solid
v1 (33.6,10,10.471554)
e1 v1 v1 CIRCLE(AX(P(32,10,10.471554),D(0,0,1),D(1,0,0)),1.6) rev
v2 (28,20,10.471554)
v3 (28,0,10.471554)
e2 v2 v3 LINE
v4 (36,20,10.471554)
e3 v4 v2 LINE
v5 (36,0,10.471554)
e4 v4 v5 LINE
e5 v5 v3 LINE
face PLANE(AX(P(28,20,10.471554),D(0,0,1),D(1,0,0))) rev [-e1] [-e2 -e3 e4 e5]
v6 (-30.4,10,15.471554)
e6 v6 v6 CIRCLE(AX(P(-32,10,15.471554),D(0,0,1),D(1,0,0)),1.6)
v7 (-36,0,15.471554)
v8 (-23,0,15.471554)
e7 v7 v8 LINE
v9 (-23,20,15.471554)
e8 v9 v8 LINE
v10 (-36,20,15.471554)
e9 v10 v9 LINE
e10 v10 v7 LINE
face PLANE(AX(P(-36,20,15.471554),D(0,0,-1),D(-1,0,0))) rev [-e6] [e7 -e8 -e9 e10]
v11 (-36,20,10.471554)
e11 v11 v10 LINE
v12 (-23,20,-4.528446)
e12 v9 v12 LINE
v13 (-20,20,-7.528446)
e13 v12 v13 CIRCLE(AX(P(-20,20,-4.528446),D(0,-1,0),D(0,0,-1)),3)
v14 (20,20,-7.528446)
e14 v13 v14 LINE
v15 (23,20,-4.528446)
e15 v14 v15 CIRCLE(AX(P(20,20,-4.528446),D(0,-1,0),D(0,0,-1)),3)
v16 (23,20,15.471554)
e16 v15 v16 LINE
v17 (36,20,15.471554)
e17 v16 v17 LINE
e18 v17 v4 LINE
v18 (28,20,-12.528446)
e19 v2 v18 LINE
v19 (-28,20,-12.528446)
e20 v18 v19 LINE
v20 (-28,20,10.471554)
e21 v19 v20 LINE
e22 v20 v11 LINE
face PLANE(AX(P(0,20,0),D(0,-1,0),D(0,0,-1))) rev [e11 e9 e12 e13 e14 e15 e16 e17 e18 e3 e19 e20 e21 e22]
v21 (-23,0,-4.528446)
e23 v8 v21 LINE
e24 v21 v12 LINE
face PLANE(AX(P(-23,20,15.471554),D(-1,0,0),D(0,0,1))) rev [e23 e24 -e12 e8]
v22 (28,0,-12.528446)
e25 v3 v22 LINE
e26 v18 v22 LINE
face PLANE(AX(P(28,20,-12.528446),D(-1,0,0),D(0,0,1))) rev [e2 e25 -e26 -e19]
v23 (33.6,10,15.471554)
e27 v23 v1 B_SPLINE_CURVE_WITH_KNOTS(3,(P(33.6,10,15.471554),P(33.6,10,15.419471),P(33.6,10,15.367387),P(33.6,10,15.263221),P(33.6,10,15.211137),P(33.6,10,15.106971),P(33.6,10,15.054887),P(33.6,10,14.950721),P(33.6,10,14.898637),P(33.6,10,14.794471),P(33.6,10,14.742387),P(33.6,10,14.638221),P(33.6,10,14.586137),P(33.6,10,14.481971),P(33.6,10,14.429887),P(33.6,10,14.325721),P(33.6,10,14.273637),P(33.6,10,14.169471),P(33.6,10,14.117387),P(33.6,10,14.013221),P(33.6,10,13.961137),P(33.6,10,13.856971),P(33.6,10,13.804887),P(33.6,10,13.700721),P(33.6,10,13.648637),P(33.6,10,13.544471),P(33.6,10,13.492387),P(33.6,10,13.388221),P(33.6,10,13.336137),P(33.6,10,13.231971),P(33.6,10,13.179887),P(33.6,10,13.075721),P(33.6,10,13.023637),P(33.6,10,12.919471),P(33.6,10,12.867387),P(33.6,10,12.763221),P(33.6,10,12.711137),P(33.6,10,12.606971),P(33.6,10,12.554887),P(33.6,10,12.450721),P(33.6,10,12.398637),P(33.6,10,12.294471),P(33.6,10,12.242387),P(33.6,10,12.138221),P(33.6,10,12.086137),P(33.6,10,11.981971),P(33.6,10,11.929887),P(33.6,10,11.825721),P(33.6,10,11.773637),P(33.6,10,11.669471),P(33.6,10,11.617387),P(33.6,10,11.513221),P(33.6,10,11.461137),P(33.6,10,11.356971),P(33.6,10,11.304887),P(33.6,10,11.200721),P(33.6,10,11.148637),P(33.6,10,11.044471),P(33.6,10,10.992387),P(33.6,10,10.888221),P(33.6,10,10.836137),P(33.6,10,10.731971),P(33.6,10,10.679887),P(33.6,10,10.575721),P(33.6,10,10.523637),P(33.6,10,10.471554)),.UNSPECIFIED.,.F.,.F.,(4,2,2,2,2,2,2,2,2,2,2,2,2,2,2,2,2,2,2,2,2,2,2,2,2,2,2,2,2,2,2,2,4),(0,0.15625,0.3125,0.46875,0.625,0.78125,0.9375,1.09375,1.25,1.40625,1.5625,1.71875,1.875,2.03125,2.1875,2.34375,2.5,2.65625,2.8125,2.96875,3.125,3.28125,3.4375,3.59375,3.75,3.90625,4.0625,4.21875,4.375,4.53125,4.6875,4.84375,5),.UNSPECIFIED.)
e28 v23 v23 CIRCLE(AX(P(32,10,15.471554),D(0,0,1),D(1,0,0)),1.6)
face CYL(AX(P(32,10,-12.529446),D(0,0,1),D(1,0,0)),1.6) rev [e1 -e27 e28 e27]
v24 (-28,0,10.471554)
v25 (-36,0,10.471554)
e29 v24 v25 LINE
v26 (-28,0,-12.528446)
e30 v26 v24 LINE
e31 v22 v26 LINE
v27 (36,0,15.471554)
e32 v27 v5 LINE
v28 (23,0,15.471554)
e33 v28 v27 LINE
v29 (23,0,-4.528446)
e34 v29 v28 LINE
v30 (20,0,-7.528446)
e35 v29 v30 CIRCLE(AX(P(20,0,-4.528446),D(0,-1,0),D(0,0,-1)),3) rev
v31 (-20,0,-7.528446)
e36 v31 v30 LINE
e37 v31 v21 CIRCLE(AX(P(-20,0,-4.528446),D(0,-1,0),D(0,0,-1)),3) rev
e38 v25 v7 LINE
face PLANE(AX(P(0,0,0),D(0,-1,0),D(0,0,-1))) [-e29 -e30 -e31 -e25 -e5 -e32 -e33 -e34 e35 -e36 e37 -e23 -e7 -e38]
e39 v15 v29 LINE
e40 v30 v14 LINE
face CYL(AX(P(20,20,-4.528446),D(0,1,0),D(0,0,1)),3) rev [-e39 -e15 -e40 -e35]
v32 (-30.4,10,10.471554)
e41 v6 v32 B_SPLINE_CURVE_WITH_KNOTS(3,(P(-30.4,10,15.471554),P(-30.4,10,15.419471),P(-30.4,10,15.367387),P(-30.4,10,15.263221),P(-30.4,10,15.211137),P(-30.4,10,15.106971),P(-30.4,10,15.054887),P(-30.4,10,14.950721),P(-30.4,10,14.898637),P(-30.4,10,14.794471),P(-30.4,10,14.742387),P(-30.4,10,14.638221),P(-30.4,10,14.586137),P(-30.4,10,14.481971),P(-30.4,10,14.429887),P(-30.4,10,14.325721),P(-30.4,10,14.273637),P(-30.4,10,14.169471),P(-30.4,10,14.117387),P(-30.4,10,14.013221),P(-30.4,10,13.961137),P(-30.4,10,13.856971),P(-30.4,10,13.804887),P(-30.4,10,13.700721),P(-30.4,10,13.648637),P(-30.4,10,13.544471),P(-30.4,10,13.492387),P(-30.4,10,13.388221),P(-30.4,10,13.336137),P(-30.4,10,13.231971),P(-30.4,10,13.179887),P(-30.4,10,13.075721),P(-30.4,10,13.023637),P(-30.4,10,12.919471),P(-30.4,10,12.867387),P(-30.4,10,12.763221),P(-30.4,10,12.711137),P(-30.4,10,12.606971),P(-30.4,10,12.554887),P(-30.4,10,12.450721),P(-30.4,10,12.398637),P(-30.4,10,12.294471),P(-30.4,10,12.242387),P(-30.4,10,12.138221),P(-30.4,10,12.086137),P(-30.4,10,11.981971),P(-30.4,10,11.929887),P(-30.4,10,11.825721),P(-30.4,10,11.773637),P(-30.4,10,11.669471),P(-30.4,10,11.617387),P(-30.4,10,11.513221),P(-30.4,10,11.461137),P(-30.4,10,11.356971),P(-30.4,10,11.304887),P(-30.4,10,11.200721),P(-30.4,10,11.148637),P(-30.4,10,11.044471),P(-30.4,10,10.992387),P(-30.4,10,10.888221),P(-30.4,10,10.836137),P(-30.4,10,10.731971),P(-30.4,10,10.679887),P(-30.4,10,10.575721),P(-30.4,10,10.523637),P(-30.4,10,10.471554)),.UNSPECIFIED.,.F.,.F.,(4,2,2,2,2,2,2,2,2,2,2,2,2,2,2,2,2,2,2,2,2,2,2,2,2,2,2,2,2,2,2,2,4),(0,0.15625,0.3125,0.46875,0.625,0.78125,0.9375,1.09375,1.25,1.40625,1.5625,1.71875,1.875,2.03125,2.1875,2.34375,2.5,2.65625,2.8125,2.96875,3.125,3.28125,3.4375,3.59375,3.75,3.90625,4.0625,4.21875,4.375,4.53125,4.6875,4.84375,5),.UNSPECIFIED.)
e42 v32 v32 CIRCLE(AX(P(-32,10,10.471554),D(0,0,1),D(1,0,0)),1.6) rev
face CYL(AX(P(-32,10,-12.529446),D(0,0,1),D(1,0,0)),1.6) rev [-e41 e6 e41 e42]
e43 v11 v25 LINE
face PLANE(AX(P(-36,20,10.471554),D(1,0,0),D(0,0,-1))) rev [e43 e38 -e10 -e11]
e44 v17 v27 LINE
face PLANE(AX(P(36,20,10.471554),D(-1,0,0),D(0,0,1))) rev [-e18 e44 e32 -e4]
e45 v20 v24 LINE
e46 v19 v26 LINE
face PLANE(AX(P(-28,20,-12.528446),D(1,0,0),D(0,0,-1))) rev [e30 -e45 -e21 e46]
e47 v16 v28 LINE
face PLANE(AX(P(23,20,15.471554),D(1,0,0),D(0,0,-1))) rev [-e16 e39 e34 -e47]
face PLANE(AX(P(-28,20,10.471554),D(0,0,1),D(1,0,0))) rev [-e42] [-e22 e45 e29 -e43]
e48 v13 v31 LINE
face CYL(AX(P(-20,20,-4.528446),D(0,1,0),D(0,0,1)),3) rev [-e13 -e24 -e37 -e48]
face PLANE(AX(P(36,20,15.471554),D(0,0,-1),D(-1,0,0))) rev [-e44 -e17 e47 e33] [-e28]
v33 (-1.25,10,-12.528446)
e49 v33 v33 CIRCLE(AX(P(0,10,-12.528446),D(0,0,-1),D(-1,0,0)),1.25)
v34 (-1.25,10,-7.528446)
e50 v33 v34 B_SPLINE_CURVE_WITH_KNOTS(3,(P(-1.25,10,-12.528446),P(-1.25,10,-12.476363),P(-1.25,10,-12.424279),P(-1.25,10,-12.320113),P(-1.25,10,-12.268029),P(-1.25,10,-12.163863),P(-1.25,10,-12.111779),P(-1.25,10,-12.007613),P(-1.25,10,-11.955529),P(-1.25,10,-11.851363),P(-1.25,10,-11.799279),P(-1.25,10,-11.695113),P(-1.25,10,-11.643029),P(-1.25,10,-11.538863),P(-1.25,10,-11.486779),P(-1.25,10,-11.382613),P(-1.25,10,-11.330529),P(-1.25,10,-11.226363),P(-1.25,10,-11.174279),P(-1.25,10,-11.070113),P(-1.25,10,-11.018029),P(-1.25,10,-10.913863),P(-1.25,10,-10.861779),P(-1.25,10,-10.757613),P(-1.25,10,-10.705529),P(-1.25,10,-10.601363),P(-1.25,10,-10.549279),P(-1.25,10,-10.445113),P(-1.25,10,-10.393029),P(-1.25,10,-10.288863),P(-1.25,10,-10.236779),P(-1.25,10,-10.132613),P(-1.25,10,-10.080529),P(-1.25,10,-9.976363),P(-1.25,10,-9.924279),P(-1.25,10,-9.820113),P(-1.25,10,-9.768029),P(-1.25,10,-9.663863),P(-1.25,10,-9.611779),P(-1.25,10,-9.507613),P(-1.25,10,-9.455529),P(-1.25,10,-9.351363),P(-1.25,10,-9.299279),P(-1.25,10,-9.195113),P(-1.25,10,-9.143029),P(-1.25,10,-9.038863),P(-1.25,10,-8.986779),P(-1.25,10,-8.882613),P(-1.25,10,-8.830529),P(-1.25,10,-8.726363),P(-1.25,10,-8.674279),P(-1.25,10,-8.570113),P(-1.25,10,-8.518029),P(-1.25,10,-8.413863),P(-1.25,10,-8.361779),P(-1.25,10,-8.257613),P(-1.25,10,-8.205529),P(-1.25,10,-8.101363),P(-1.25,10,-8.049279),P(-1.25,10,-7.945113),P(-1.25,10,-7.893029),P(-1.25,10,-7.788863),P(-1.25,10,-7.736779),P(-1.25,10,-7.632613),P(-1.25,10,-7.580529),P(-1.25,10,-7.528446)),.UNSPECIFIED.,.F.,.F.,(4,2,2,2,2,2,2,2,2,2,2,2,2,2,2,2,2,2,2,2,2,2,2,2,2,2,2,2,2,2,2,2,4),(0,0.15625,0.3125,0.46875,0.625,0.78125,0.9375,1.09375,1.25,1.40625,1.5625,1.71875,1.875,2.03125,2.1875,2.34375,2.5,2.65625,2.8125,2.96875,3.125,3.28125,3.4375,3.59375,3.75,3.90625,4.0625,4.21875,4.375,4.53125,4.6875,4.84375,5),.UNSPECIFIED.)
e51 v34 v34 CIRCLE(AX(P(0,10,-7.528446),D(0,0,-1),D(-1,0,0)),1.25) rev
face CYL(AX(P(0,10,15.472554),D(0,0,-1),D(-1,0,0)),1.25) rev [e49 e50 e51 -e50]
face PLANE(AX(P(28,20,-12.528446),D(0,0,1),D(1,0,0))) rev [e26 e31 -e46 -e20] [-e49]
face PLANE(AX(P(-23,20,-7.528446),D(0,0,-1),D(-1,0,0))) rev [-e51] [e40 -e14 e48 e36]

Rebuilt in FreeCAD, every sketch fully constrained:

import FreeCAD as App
import Part
import Sketcher
from FreeCAD import Vector


def edges_at(feature, points):
    """Names of the edges that pass closest to the given points."""
    edges = feature.Shape.Edges
    near = lambda p: min(range(len(edges)), key=lambda i: edges[i].distToShape(Part.Vertex(*p))[0])
    return sorted({f"Edge{near(p) + 1}" for p in points})


def add_polygon(sketch, points):
    """Adds a closed chain of lines whose ends are joined by coincident constraints."""
    first, n = sketch.GeometryCount, len(points)
    for a, b in zip(points, points[1:] + points[:1]):
        sketch.addGeometry(Part.LineSegment(App.Vector(*a, 0), App.Vector(*b, 0)), False)
    for i in range(n):
        sketch.addConstraint(Sketcher.Constraint("Coincident", first + i, 2, first + (i + 1) % n, 1))

doc = App.newDocument("Part")
body = doc.addObject("PartDesign::Body", "Body")

sketch1 = doc.addObject("Sketcher::SketchObject", "Sketch")
body.addObject(sketch1)
sketch1.AttachmentSupport = (doc.XZ_Plane, [""])
sketch1.MapMode = "FlatFace"
add_polygon(sketch1, [(28, -13), (-28, -13), (-28, 10), (-36, 10), (-36, 15), (-23, 15), (-23, -8), (23, -8), (23, 15), (36, 15), (36, 10), (28, 10)])
sketch1.addConstraint(Sketcher.Constraint("Horizontal", 0))
sketch1.addConstraint(Sketcher.Constraint("Vertical", 1))
sketch1.addConstraint(Sketcher.Constraint("Horizontal", 2))
sketch1.addConstraint(Sketcher.Constraint("Vertical", 3))
sketch1.addConstraint(Sketcher.Constraint("Horizontal", 4))
sketch1.addConstraint(Sketcher.Constraint("Vertical", 5))
sketch1.addConstraint(Sketcher.Constraint("Horizontal", 6))
sketch1.addConstraint(Sketcher.Constraint("Vertical", 7))
sketch1.addConstraint(Sketcher.Constraint("Horizontal", 8))
sketch1.addConstraint(Sketcher.Constraint("Vertical", 9))
sketch1.addConstraint(Sketcher.Constraint("Horizontal", 10))
sketch1.addConstraint(Sketcher.Constraint("Vertical", 11))
sketch1.addConstraint(Sketcher.Constraint("Symmetric", 4, 2, 7, 2, -2))
sketch1.addConstraint(Sketcher.Constraint("Symmetric", 2, 2, 9, 2, -2))
sketch1.addConstraint(Sketcher.Constraint("Equal", 2, 10))
sketch1.addConstraint(Sketcher.Constraint("Equal", 1, 5))
sketch1.addConstraint(Sketcher.Constraint("DistanceX", 0, 2, 0, 1, 56.0))
sketch1.addConstraint(Sketcher.Constraint("DistanceX", 2, 2, 2, 1, 8.0))
sketch1.addConstraint(Sketcher.Constraint("DistanceX", 4, 1, 4, 2, 13.0))
sketch1.addConstraint(Sketcher.Constraint("DistanceY", 1, 1, 1, 2, 23.0))
sketch1.addConstraint(Sketcher.Constraint("DistanceY", 3, 1, 3, 2, 5.0))
sketch1.addConstraint(Sketcher.Constraint("DistanceY", 0, 2, -1, 1, 12.528446))
pad1 = doc.addObject("PartDesign::Pad", "Pad")
body.addObject(pad1)
pad1.Profile = sketch1
pad1.Length = 20
pad1.Reversed = True
doc.recompute()

fillet = doc.addObject("PartDesign::Fillet", "Fillet")
body.addObject(fillet)
fillet.Base = (pad1, edges_at(pad1, [(23, 10, -7.528), (-23, 10, -7.528)]))
fillet.Radius = 3

sketch2 = doc.addObject("Sketcher::SketchObject", "Sketch001")
body.addObject(sketch2)
sketch2.AttachmentSupport = (doc.XY_Plane, [""])
sketch2.MapMode = "FlatFace"
sketch2.AttachmentOffset = App.Placement(Vector(0, 0, 15.471554), App.Rotation())
sketch2.addGeometry(Part.Circle(Vector(-32, 10, 0), Vector(0, 0, 1), 1.6), False)
sketch2.addConstraint(Sketcher.Constraint("Diameter", 0, 3.2))
sketch2.addConstraint(Sketcher.Constraint("DistanceX", 0, 3, -1, 1, 32.0))
sketch2.addConstraint(Sketcher.Constraint("DistanceY", -1, 1, 0, 3, 10.0))
pocket1 = doc.addObject("PartDesign::Pocket", "Pocket")
body.addObject(pocket1)
pocket1.Profile = sketch2
pocket1.Type = "UpToFirst"

sketch3 = doc.addObject("Sketcher::SketchObject", "Sketch002")
body.addObject(sketch3)
sketch3.AttachmentSupport = (doc.XY_Plane, [""])
sketch3.MapMode = "FlatFace"
sketch3.AttachmentOffset = App.Placement(Vector(0, 0, 15.471554), App.Rotation())
sketch3.addGeometry(Part.Circle(Vector(32, 10, 0), Vector(0, 0, 1), 1.6), False)
sketch3.addConstraint(Sketcher.Constraint("Diameter", 0, 3.2))
sketch3.addConstraint(Sketcher.Constraint("DistanceX", -1, 1, 0, 3, 32.0))
sketch3.addConstraint(Sketcher.Constraint("DistanceY", -1, 1, 0, 3, 10.0))
pocket2 = doc.addObject("PartDesign::Pocket", "Pocket001")
body.addObject(pocket2)
pocket2.Profile = sketch3
pocket2.Type = "UpToFirst"

sketch4 = doc.addObject("Sketcher::SketchObject", "Sketch003")
body.addObject(sketch4)
sketch4.AttachmentSupport = (doc.XY_Plane, [""])
sketch4.MapMode = "FlatFace"
sketch4.AttachmentOffset = App.Placement(Vector(0, 0, -12.528446), App.Rotation())
sketch4.addGeometry(Part.Circle(Vector(0, 10, 0), Vector(0, 0, 1), 1.2), False)
sketch4.addConstraint(Sketcher.Constraint("PointOnObject", 0, 3, -2))
sketch4.addConstraint(Sketcher.Constraint("Diameter", 0, 2.5))
sketch4.addConstraint(Sketcher.Constraint("DistanceY", -1, 1, 0, 3, 10.0))
pocket3 = doc.addObject("PartDesign::Pocket", "Pocket002")
body.addObject(pocket3)
pocket3.Profile = sketch4
pocket3.Type = "UpToFirst"
pocket3.Reversed = True

doc.recompute()
